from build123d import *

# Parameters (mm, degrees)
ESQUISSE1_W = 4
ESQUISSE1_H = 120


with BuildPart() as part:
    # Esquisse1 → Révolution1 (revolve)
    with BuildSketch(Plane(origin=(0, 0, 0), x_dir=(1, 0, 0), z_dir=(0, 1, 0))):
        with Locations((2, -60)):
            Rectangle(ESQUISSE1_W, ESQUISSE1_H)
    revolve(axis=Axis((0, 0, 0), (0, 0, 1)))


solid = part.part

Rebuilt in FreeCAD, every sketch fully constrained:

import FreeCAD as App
import Part
import Sketcher
from FreeCAD import Vector

doc = App.newDocument("Part")
body = doc.addObject("PartDesign::Body", "Body")

# Sketch on XZ plane
sketch1 = doc.addObject("Sketcher::SketchObject", "Sketch")
body.addObject(sketch1)
sketch1.AttachmentSupport = (doc.XZ_Plane, [""])
sketch1.MapMode = "FlatFace"
sketch1.addGeometry(Part.LineSegment(Vector(0, 0, 0), Vector(0, 120, 0)), False)
sketch1.addGeometry(Part.LineSegment(Vector(0, 120, 0), Vector(4, 120, 0)), False)
sketch1.addGeometry(Part.LineSegment(Vector(4, 120, 0), Vector(4, 0, 0)), False)
sketch1.addGeometry(Part.LineSegment(Vector(4, 0, 0), Vector(0, 0, 0)), False)
sketch1.addConstraint(Sketcher.Constraint("Coincident", 0, 2, 1, 1))
sketch1.addConstraint(Sketcher.Constraint("Coincident", 1, 2, 2, 1))
sketch1.addConstraint(Sketcher.Constraint("Coincident", 2, 2, 3, 1))
sketch1.addConstraint(Sketcher.Constraint("Coincident", 3, 2, 0, 1))
sketch1.addConstraint(Sketcher.Constraint("Vertical", 0))
sketch1.addConstraint(Sketcher.Constraint("Horizontal", 1))
sketch1.addConstraint(Sketcher.Constraint("Vertical", 2))
sketch1.addConstraint(Sketcher.Constraint("Horizontal", 3))
sketch1.addConstraint(Sketcher.Constraint("Coincident", 3, 2, -1, 1))
sketch1.addConstraint(Sketcher.Constraint("DistanceX", 1, 1, 1, 2, 4.0))
sketch1.addConstraint(Sketcher.Constraint("DistanceY", 0, 1, 0, 2, 120.0))
revolution = doc.addObject("PartDesign::Revolution", "Revolution")
body.addObject(revolution)
revolution.Profile = sketch1
revolution.ReferenceAxis = (sketch1, ["V_Axis"])
revolution.Angle = 360

doc.recompute()
